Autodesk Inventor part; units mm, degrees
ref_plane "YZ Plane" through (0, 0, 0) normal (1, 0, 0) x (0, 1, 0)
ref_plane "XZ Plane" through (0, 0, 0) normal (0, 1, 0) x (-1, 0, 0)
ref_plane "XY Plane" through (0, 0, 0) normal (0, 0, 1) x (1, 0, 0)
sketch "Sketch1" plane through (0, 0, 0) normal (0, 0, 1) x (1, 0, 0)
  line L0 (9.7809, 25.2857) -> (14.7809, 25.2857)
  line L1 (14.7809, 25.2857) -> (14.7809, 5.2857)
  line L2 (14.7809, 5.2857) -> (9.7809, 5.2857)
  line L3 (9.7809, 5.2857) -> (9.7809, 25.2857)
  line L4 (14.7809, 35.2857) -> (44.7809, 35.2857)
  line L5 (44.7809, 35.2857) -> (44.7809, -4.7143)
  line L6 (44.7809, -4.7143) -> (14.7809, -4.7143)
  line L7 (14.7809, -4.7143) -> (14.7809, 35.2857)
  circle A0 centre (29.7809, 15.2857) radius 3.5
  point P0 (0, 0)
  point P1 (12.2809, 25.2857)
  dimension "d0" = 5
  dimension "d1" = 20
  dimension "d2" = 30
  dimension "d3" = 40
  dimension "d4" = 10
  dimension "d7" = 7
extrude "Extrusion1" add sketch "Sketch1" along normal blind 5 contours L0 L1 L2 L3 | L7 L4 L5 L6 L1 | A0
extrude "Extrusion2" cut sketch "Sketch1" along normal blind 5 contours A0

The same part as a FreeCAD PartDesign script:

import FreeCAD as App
import Part
import Sketcher

V = App.Vector
Q = App.Units.Quantity


def add_polygon(sketch, points):
    """Adds a closed chain of lines whose ends are joined by coincident constraints."""
    first, n = sketch.GeometryCount, len(points)
    for a, b in zip(points, points[1:] + points[:1]):
        sketch.addGeometry(Part.LineSegment(App.Vector(*a, 0), App.Vector(*b, 0)), False)
    for i in range(n):
        sketch.addConstraint(Sketcher.Constraint("Coincident", first + i, 2, first + (i + 1) % n, 1))

doc = App.newDocument("Part")
body = doc.addObject("PartDesign::Body", "Body")

sketch1 = body.newObject("Sketcher::SketchObject", "Sketch")
sketch1.AttachmentSupport = (doc.getObject("XY_Plane"), [""])
sketch1.MapMode = "FlatFace"
add_polygon(sketch1, [(15, 25), (10, 25), (10, 5), (15, 5), (15, -5), (45, -5), (45, 35), (15, 35)])
sketch1.addConstraint([
    Sketcher.Constraint("Horizontal", 0),
    Sketcher.Constraint("Vertical", 1),
    Sketcher.Constraint("Horizontal", 2),
    Sketcher.Constraint("Vertical", 3),
    Sketcher.Constraint("Horizontal", 4),
    Sketcher.Constraint("Vertical", 5),
    Sketcher.Constraint("Horizontal", 6),
    Sketcher.Constraint("Vertical", 7),
    Sketcher.Constraint("Vertical", 3, 2, 6, 2),
    Sketcher.Constraint("Equal", 3, 7),
    Sketcher.Constraint("DistanceX", 0, 2, 0, 1, Q("5 mm")),
    Sketcher.Constraint("DistanceX", 4, 1, 4, 2, Q("30 mm")),
    Sketcher.Constraint("DistanceY", 1, 2, 1, 1, Q("20 mm")),
    Sketcher.Constraint("DistanceY", 3, 2, 3, 1, Q("10 mm")),
    Sketcher.Constraint("DistanceX", -1, 1, 0, 2, Q("9.781 mm")),
    Sketcher.Constraint("DistanceY", -1, 1, 0, 2, Q("25.2857 mm")),
])
pad1 = body.newObject("PartDesign::Pad", "Pad")
pad1.Profile = sketch1
pad1.Length = 5

sketch2 = body.newObject("Sketcher::SketchObject", "Sketch001")
sketch2.AttachmentSupport = (doc.getObject("XY_Plane"), [""])
sketch2.MapMode = "FlatFace"
sketch2.addGeometry(Part.Circle(V(29.8, 15.3, 0), V(0, 0, 1), 3.5), False)
sketch2.addConstraint([
    Sketcher.Constraint("Diameter", 0, Q("7 mm")),
    Sketcher.Constraint("DistanceX", -1, 1, 0, 3, Q("29.781 mm")),
    Sketcher.Constraint("DistanceY", -1, 1, 0, 3, Q("15.2857 mm")),
])
pocket1 = body.newObject("PartDesign::Pocket", "Pocket")
pocket1.Profile = sketch2
pocket1.Length = 5
pocket1.Reversed = True

doc.recompute()
